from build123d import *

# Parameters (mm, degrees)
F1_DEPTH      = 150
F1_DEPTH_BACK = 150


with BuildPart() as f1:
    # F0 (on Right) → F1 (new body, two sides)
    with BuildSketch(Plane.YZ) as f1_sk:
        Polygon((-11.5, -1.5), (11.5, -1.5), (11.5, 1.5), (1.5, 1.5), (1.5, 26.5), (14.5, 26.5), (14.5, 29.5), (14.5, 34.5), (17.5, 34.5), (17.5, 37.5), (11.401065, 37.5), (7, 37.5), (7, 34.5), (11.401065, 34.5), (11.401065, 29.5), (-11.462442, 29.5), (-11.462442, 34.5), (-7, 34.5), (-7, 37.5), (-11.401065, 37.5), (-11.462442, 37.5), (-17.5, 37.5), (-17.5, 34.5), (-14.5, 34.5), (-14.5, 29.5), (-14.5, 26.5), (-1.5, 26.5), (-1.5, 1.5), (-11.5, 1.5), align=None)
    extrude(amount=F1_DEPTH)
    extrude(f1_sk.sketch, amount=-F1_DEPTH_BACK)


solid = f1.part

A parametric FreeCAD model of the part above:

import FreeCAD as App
import Part
import Sketcher
from FreeCAD import Vector
Q = App.Units.Quantity


def add_polygon(sketch, points):
    """Adds a closed chain of lines whose ends are joined by coincident constraints."""
    first, n = sketch.GeometryCount, len(points)
    for a, b in zip(points, points[1:] + points[:1]):
        sketch.addGeometry(Part.LineSegment(App.Vector(*a, 0), App.Vector(*b, 0)), False)
    for i in range(n):
        sketch.addConstraint(Sketcher.Constraint("Coincident", first + i, 2, first + (i + 1) % n, 1))

doc = App.newDocument("Part")
body = doc.addObject("PartDesign::Body", "Body")

# Sketch on YZ plane
sketch1 = doc.addObject("Sketcher::SketchObject", "Sketch")
body.addObject(sketch1)
sketch1.AttachmentSupport = (doc.YZ_Plane, [""])
sketch1.MapMode = "FlatFace"
add_polygon(sketch1, [(-11.5, -1.5), (11.5, -1.5), (11.5, 1.5), (1.5, 1.5), (1.5, 26.5), (14.5, 26.5), (14.5, 34.5), (17.5, 34.5), (17.5, 37.5), (7, 37.5), (7, 34.5), (11.4, 34.5), (11.4, 29.5), (-11.5, 29.5), (-11.5, 34.5), (-7, 34.5), (-7, 37.5), (-17.5, 37.5), (-17.5, 34.5), (-14.5, 34.5), (-14.5, 26.5), (-1.5, 26.5), (-1.5, 1.5), (-11.5, 1.5)])  # lines 0-23
sketch1.addConstraint([
    Sketcher.Constraint("Horizontal", 0),
    Sketcher.Constraint("Vertical", 1),
    Sketcher.Constraint("Horizontal", 2),
    Sketcher.Constraint("Vertical", 3),
    Sketcher.Constraint("Horizontal", 4),
    Sketcher.Constraint("Vertical", 5),
    Sketcher.Constraint("Horizontal", 6),
    Sketcher.Constraint("Vertical", 7),
    Sketcher.Constraint("Horizontal", 8),
    Sketcher.Constraint("Vertical", 9),
    Sketcher.Constraint("Horizontal", 10),
    Sketcher.Constraint("Vertical", 11),
    Sketcher.Constraint("Horizontal", 12),
    Sketcher.Constraint("Vertical", 13),
    Sketcher.Constraint("Horizontal", 14),
    Sketcher.Constraint("Vertical", 15),
    Sketcher.Constraint("Horizontal", 16),
    Sketcher.Constraint("Vertical", 17),
    Sketcher.Constraint("Horizontal", 18),
    Sketcher.Constraint("Vertical", 19),
    Sketcher.Constraint("Horizontal", 20),
    Sketcher.Constraint("Vertical", 21),
    Sketcher.Constraint("Horizontal", 22),
    Sketcher.Constraint("Vertical", 23),
    Sketcher.Constraint("Symmetric", 0, 2, 22, 2, -1, 1),
    Sketcher.Constraint("Symmetric", 9, 2, 14, 2, -2),
    Sketcher.Constraint("Symmetric", 7, 2, 16, 2, -2),
    Sketcher.Constraint("Symmetric", 5, 2, 18, 2, -2),
    Sketcher.Constraint("Symmetric", 3, 2, 20, 2, -2),
    Sketcher.Constraint("Horizontal", 6, 2, 9, 2),
    Sketcher.Constraint("Horizontal", 2, 2, 21, 2),
    Sketcher.Constraint("Equal", 18, 1),
    Sketcher.Constraint("Equal", 1, 7),
    Sketcher.Constraint("DistanceX", 0, 1, 0, 2, Q("23 mm")),
    Sketcher.Constraint("DistanceX", 2, 2, 2, 1, Q("10 mm")),
    Sketcher.Constraint("DistanceX", 4, 1, 4, 2, Q("13 mm")),
    Sketcher.Constraint("DistanceX", 6, 1, 6, 2, Q("3 mm")),
    Sketcher.Constraint("DistanceY", 3, 1, 3, 2, Q("25 mm")),
    Sketcher.Constraint("DistanceY", 5, 1, 5, 2, Q("8 mm")),
    Sketcher.Constraint("DistanceY", 11, 2, 11, 1, Q("5 mm")),
    Sketcher.Constraint("DistanceX", 8, 2, 8, 1, Q("10.5 mm")),
    Sketcher.Constraint("DistanceX", 14, 1, 14, 2, Q("4.462442 mm")),
    Sketcher.Constraint("DistanceX", 10, 1, 10, 2, Q("4.401065 mm")),
])
pad1 = doc.addObject("PartDesign::Pad", "Pad")
body.addObject(pad1)
pad1.Profile = sketch1
pad1.Type = "TwoLengths"
pad1.Length = 150
pad1.Length2 = 150

doc.recompute()
